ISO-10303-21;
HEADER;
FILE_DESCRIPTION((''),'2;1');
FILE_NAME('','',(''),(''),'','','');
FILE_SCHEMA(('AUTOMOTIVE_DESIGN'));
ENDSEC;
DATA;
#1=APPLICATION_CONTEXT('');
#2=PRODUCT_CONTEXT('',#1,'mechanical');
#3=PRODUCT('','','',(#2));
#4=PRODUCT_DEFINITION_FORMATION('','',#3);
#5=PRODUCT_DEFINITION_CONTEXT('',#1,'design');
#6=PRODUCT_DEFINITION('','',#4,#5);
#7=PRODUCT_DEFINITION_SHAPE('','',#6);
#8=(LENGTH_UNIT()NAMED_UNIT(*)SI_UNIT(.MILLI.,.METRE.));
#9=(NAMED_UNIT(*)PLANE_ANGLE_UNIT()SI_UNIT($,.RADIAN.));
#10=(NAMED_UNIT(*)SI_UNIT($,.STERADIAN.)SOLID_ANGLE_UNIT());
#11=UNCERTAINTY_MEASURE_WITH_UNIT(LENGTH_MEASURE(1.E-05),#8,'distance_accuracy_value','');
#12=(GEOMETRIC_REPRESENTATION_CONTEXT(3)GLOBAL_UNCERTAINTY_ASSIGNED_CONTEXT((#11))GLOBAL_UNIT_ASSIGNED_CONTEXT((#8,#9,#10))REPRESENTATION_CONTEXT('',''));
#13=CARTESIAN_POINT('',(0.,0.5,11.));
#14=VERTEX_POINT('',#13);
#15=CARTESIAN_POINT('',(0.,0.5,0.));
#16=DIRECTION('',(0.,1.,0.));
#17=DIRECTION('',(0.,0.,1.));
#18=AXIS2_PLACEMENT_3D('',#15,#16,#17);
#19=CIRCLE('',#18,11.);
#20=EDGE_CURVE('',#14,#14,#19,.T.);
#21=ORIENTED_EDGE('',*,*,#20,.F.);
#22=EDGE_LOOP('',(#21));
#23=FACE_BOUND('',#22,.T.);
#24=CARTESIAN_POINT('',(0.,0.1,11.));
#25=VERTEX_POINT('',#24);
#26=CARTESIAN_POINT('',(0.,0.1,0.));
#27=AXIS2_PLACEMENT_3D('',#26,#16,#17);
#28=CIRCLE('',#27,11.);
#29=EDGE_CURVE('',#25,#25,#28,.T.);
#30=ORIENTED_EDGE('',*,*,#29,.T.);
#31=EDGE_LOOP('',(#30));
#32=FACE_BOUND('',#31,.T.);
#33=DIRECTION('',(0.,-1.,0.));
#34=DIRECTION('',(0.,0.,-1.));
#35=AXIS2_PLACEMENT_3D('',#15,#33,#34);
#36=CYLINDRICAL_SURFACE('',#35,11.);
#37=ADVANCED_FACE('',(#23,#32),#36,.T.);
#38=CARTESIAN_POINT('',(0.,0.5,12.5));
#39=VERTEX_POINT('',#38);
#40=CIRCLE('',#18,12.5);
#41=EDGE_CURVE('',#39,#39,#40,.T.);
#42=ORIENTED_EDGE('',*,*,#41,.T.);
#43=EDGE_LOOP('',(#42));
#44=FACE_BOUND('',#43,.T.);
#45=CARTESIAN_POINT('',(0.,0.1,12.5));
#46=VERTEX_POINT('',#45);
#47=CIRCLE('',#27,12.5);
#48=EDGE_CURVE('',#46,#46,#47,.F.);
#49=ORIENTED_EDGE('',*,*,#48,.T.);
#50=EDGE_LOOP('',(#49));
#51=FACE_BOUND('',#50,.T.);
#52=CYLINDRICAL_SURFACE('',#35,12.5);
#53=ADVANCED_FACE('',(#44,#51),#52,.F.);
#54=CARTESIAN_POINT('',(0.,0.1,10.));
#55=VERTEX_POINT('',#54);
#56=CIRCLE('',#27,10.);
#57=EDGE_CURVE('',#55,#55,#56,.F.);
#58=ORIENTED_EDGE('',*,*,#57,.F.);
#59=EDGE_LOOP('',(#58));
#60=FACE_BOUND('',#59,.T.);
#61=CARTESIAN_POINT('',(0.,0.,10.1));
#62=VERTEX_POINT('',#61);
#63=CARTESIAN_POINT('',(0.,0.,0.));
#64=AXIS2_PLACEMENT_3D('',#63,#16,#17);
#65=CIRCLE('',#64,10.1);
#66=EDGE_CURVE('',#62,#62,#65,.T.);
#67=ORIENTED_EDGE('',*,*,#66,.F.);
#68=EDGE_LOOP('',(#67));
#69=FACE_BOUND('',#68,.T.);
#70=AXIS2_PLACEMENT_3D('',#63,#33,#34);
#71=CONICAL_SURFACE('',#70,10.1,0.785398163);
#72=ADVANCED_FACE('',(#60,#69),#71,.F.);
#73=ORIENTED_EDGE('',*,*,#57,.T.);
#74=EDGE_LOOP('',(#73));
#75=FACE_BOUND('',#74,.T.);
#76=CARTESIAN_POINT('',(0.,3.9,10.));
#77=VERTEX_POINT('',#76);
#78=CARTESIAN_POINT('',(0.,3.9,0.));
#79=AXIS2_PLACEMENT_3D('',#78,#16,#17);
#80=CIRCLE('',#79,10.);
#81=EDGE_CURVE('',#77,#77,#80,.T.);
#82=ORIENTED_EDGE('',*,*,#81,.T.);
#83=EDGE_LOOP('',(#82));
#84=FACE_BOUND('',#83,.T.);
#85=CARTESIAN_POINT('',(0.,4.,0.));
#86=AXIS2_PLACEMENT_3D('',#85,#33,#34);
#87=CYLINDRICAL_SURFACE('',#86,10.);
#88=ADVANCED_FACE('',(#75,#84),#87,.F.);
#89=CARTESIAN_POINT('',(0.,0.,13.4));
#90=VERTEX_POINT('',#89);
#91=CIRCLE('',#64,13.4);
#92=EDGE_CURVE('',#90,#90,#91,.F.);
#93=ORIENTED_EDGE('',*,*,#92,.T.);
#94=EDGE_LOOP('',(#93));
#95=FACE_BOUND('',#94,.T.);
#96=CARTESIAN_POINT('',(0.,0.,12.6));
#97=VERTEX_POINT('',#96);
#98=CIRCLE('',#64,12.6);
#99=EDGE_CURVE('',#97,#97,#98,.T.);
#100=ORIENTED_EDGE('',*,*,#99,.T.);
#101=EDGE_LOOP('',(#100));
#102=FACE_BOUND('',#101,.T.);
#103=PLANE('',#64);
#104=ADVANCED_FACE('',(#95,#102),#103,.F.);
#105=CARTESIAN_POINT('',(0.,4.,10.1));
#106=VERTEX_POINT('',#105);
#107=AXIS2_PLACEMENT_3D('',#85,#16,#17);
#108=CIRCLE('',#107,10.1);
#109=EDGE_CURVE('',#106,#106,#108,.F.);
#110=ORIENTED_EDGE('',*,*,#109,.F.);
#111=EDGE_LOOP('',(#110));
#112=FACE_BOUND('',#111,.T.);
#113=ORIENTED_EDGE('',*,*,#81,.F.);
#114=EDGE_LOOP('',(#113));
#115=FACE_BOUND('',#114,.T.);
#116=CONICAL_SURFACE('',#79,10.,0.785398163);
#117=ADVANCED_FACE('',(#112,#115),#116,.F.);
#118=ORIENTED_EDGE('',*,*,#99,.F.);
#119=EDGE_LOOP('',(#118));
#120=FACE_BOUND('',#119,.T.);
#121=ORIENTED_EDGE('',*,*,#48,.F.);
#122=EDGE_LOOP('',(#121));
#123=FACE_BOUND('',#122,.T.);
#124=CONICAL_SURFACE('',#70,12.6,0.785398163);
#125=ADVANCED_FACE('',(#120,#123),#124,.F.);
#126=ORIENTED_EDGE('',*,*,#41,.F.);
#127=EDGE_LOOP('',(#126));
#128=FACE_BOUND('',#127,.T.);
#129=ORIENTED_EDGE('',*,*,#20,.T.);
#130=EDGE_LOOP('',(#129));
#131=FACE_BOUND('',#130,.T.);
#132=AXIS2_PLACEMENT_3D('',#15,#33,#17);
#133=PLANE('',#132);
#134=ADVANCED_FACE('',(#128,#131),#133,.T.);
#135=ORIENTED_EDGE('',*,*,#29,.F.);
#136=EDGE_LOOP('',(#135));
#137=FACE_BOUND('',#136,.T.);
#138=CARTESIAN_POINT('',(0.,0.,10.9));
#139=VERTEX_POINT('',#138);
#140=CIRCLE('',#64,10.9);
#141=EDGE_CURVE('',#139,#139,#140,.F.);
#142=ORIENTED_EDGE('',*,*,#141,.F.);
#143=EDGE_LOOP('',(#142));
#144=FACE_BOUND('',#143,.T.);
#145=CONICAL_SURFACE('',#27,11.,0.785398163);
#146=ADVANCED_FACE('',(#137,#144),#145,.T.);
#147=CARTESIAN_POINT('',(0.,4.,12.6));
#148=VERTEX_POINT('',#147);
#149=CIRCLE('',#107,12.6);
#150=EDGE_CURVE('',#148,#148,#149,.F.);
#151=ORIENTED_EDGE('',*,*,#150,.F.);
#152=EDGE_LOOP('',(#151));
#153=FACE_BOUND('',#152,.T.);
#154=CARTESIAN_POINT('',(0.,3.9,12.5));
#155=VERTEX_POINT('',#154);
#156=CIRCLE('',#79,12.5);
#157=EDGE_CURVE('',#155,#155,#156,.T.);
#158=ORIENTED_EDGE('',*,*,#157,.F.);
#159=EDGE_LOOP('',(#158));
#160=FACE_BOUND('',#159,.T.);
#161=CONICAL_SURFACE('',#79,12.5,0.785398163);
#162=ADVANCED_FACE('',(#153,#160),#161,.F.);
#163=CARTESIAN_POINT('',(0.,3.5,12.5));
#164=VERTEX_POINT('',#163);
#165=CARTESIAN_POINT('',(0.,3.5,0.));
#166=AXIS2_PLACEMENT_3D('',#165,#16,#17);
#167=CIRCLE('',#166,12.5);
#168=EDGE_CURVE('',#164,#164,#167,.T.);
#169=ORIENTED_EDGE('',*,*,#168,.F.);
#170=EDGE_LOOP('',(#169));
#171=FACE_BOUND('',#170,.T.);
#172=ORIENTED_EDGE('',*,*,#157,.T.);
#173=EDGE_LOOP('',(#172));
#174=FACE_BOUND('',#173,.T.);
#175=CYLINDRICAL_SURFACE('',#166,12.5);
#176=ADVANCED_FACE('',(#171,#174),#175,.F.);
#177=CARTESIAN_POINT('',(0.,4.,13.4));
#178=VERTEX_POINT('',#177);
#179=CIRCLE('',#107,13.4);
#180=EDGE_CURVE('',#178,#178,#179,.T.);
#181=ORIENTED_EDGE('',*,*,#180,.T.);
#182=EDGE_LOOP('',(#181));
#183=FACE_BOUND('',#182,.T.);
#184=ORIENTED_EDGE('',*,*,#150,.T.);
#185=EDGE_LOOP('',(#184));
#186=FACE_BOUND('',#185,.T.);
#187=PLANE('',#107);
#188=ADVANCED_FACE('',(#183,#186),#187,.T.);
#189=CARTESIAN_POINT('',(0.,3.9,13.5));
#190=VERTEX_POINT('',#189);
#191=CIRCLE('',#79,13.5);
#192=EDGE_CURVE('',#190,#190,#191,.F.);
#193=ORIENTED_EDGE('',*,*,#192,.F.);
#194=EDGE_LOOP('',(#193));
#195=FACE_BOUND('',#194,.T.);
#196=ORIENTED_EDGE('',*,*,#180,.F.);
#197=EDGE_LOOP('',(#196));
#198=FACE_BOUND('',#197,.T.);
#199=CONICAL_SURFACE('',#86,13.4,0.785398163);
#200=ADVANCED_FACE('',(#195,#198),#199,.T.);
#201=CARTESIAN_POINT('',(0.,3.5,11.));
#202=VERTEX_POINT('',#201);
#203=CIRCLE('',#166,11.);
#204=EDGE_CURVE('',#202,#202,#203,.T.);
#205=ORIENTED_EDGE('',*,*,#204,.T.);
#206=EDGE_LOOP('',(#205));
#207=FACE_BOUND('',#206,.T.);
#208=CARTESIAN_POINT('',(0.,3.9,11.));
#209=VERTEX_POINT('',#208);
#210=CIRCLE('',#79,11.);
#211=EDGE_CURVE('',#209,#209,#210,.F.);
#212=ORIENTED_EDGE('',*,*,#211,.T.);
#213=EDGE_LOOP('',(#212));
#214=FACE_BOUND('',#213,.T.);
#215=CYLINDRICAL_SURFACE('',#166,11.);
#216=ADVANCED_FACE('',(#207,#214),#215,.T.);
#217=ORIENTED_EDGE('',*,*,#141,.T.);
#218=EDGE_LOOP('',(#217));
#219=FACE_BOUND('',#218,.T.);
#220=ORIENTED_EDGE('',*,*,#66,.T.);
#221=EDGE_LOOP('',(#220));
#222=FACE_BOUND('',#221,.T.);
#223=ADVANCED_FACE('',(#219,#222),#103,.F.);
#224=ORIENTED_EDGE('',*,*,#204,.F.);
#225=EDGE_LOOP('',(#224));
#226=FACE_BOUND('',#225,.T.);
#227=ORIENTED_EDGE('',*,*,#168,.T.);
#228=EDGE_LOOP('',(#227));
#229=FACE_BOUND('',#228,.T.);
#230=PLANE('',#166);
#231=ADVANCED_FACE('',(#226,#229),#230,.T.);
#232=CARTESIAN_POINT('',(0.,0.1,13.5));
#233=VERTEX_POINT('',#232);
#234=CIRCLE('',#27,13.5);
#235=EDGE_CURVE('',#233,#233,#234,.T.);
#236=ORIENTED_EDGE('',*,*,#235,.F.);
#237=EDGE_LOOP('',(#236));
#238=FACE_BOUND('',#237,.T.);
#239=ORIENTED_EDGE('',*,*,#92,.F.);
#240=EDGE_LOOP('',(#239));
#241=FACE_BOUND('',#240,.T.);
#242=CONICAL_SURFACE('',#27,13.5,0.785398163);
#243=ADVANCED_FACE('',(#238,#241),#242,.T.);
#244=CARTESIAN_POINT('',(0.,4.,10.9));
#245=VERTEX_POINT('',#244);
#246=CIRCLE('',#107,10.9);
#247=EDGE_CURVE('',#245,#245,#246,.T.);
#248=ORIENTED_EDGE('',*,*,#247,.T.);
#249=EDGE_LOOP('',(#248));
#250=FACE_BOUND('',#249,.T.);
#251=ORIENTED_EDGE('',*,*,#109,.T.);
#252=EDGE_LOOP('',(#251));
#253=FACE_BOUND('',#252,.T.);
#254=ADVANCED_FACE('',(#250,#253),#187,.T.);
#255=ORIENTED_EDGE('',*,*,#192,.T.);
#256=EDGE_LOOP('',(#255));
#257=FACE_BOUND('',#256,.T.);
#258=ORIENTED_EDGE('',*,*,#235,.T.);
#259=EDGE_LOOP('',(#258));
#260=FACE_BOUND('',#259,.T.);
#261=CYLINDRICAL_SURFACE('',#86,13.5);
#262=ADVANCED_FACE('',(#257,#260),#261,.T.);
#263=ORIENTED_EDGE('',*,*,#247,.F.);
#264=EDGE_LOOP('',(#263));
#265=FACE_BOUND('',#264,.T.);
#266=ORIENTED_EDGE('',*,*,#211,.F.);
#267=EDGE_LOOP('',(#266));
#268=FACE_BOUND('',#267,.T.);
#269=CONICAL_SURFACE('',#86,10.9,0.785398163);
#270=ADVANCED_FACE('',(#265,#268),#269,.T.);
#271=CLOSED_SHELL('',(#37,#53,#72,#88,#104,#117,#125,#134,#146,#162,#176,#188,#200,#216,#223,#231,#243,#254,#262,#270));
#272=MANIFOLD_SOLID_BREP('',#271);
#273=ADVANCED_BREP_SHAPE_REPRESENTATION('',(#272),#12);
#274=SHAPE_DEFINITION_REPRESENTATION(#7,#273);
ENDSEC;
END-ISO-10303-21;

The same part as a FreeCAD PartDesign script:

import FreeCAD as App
import Part
import Sketcher

V = App.Vector
Q = App.Units.Quantity


def edges_at(feature, points):
    """Names of the edges that pass closest to the given points."""
    edges = feature.Shape.Edges
    near = lambda p: min(range(len(edges)), key=lambda i: edges[i].distToShape(Part.Vertex(*p))[0])
    return sorted({f"Edge{near(p) + 1}" for p in points})

doc = App.newDocument("Part")
params = doc.addObject("Spreadsheet::Sheet", "Params")
for row, (alias, value) in enumerate([
    ("sketch1_diameter", "27 mm"),
    ("sketch1_diameter2", "20 mm"),
    ("pad1_length", "4 mm"),
    ("sketch2_diameter", "25 mm"),
    ("sketch2_diameter2", "22 mm"),
    ("pocket1_length", "0.5 mm"),
    ("chamfer_size", "0.1 mm"),
], start=1):
    params.set(f"A{row}", alias)
    params.set(f"B{row}", "=" + value)
    params.setAlias(f"B{row}", alias)

body = doc.addObject("PartDesign::Body", "Body")

# Sketch on XZ plane
sketch1 = doc.addObject("Sketcher::SketchObject", "Sketch")
body.addObject(sketch1)
sketch1.AttachmentSupport = (doc.XZ_Plane, [""])
sketch1.MapMode = "FlatFace"
sketch1.addGeometry([
    Part.Circle(V(0, 0, 0), V(0, 0, 1), 14),
    Part.Circle(V(0, 0, 0), V(0, 0, 1), 10),
], False)
sketch1.addConstraint([
    Sketcher.Constraint("Coincident", 0, 3, -1, 1),
    Sketcher.Constraint("Coincident", 1, 3, -1, 1),
    Sketcher.Constraint("Diameter", 0, Q("27 mm")),
    Sketcher.Constraint("Diameter", 1, Q("20 mm")),
])
sketch1.setExpression("Constraints[2]", "Params.sketch1_diameter")
sketch1.setExpression("Constraints[3]", "Params.sketch1_diameter2")
pad1 = doc.addObject("PartDesign::Pad", "Pad")
body.addObject(pad1)
pad1.Profile = sketch1
pad1.setExpression("Length", "Params.pad1_length")
pad1.Reversed = True

# Sketch on XZ plane
sketch2 = doc.addObject("Sketcher::SketchObject", "Sketch001")
body.addObject(sketch2)
sketch2.AttachmentSupport = (doc.XZ_Plane, [""])
sketch2.MapMode = "FlatFace"
sketch2.AttachmentOffset = App.Placement(V(0, 0, -4), App.Rotation())
sketch2.addGeometry([
    Part.Circle(V(0, 0, 0), V(0, 0, 1), 12),
    Part.Circle(V(0, 0, 0), V(0, 0, 1), 11),
], False)
sketch2.addConstraint([
    Sketcher.Constraint("Coincident", 0, 3, -1, 1),
    Sketcher.Constraint("Coincident", 1, 3, -1, 1),
    Sketcher.Constraint("Diameter", 0, Q("25 mm")),
    Sketcher.Constraint("Diameter", 1, Q("22 mm")),
])
sketch2.setExpression("Constraints[2]", "Params.sketch2_diameter")
sketch2.setExpression("Constraints[3]", "Params.sketch2_diameter2")
pocket1 = doc.addObject("PartDesign::Pocket", "Pocket")
body.addObject(pocket1)
pocket1.Profile = sketch2
pocket1.setExpression("Length", "Params.pocket1_length")
pocket1.Reversed = True
doc.recompute()

datumplane = doc.addObject("PartDesign::Plane", "DatumPlane")
body.addObject(datumplane)
datumplane.AttachmentSupport = (doc.XZ_Plane, [""])
datumplane.MapMode = "FlatFace"
datumplane.AttachmentOffset = App.Placement(V(0, 0, -2), App.Rotation())
mirrored = doc.addObject("PartDesign::Mirrored", "Mirrored")
body.addObject(mirrored)
mirrored.Originals = [pocket1]
mirrored.MirrorPlane = (datumplane, [""])
body.Tip = mirrored
doc.recompute()

chamfer = doc.addObject("PartDesign::Chamfer", "Chamfer")
body.addObject(chamfer)
chamfer.Base = (mirrored, edges_at(mirrored, [
    (0, 4, -12.5),
    (0, 4, -11),
    (0, 0, -11),
    (0, 0, -12.5),
    (0, 0, -13.5),
    (0, 4, -13.5),
    (0, 0, -10),
    (0, 4, -10),
]))
chamfer.setExpression("Size", "Params.chamfer_size")

doc.recompute()
